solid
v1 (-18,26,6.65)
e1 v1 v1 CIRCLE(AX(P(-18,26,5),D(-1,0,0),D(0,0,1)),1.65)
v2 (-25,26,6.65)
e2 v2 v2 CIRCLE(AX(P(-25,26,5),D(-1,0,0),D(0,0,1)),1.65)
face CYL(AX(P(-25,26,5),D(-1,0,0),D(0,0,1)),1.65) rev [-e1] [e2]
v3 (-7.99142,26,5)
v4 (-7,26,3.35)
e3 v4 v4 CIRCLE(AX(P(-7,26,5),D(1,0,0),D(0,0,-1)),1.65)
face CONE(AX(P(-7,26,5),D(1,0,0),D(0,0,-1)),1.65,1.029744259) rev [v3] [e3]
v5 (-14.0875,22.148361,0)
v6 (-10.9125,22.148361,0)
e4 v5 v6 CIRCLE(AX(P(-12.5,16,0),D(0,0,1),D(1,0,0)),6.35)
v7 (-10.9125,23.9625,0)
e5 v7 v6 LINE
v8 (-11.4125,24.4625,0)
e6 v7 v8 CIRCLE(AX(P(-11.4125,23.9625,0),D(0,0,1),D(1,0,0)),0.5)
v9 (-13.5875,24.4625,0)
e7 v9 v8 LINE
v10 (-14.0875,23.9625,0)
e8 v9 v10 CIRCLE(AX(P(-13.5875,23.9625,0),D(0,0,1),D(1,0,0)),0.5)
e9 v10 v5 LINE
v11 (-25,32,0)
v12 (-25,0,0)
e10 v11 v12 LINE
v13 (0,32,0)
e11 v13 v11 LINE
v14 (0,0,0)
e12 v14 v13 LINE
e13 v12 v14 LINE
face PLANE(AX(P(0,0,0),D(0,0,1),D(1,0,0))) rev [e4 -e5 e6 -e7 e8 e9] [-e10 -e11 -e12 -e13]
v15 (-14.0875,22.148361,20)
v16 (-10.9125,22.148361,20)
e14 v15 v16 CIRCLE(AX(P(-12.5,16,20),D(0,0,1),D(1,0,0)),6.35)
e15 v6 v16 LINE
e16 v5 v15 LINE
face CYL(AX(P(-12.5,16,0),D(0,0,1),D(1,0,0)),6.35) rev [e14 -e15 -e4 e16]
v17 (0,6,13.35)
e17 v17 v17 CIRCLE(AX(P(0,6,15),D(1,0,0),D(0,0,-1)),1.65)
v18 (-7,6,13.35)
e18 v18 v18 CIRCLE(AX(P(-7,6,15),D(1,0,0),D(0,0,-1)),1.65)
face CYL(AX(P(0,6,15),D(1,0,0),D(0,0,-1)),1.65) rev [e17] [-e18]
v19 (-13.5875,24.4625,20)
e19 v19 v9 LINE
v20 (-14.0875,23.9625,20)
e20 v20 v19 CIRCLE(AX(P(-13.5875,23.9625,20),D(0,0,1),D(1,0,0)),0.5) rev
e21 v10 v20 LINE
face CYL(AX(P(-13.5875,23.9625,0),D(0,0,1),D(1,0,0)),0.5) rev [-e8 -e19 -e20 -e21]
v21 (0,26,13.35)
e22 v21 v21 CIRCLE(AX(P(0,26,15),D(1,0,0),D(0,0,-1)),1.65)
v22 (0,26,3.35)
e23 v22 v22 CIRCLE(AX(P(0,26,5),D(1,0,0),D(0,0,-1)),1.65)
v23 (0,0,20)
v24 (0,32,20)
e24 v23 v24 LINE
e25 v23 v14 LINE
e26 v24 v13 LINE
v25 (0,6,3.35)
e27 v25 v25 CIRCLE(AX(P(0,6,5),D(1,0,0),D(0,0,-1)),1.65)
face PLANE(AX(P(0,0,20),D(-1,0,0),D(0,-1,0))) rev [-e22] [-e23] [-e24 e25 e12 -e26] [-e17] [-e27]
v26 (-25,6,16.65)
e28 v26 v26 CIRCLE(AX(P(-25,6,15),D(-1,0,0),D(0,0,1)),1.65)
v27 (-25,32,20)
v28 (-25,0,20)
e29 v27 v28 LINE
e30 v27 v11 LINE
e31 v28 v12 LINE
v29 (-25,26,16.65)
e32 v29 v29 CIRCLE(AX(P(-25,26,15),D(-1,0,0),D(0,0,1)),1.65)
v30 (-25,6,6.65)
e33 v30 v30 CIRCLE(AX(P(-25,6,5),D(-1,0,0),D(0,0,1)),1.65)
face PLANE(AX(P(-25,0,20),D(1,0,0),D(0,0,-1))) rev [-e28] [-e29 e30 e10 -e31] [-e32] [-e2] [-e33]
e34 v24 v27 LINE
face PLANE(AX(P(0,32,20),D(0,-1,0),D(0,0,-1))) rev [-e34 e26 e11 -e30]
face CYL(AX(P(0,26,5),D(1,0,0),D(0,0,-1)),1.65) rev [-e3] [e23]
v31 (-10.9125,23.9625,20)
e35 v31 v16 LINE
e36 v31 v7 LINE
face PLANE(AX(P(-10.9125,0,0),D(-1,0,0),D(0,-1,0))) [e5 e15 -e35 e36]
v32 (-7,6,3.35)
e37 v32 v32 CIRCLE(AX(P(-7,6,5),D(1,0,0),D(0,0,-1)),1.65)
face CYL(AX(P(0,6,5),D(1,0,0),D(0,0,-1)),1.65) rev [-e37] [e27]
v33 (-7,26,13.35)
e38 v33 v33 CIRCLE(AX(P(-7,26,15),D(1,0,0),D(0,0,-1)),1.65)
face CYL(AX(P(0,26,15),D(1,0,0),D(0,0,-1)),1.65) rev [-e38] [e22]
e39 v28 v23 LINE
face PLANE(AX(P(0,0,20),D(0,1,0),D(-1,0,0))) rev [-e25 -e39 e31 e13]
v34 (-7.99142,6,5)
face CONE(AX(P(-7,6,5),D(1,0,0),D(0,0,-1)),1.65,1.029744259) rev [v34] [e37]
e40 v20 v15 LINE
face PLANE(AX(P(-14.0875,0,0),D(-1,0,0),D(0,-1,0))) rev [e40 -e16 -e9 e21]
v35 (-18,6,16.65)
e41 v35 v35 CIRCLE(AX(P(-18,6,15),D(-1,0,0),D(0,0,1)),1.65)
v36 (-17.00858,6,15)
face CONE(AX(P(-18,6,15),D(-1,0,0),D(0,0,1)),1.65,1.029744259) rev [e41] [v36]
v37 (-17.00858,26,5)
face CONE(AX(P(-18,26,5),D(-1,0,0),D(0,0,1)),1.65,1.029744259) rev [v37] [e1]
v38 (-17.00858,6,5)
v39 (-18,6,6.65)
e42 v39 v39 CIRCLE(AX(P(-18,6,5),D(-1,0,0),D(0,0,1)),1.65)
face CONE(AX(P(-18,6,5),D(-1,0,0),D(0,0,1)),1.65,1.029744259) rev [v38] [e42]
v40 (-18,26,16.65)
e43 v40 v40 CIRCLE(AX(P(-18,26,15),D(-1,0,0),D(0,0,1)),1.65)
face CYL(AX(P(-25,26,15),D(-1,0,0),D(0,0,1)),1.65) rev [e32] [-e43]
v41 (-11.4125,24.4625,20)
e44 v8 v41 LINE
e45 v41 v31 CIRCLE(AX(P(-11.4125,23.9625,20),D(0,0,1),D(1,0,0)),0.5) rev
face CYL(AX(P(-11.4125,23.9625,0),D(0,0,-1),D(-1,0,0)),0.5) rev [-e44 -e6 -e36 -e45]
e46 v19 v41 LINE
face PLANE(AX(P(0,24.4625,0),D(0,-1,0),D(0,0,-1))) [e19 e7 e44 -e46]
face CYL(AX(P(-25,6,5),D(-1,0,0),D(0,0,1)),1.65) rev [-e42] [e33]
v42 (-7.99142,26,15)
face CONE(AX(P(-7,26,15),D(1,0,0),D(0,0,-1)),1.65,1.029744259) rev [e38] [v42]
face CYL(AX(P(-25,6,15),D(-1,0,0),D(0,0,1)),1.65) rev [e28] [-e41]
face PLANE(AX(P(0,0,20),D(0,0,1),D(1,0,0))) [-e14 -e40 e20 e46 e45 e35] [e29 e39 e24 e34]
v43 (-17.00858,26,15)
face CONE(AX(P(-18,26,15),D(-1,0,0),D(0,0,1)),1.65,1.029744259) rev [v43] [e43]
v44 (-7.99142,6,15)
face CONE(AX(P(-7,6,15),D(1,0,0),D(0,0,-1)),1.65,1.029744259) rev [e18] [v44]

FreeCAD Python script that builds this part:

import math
import FreeCAD as App
import Part
import Sketcher
Q = App.Units.Quantity


def edges_at(feature, points):
    """Names of the edges that pass closest to the given points."""
    edges = feature.Shape.Edges
    near = lambda p: min(range(len(edges)), key=lambda i: edges[i].distToShape(Part.Vertex(*p))[0])
    return sorted({f"Edge{near(p) + 1}" for p in points})


def add_polygon(sketch, points):
    """Adds a closed chain of lines whose ends are joined by coincident constraints."""
    first, n = sketch.GeometryCount, len(points)
    for a, b in zip(points, points[1:] + points[:1]):
        sketch.addGeometry(Part.LineSegment(App.Vector(*a, 0), App.Vector(*b, 0)), False)
    for i in range(n):
        sketch.addConstraint(Sketcher.Constraint("Coincident", first + i, 2, first + (i + 1) % n, 1))

doc = App.newDocument("Part")
body = doc.addObject("PartDesign::Body", "Body")

# Sketch on XY plane
sketch1 = body.newObject("Sketcher::SketchObject", "Sketch")
sketch1.AttachmentSupport = (doc.getObject("XY_Plane"), [""])
sketch1.MapMode = "FlatFace"
add_polygon(sketch1, [(-25, 32), (-25, 0), (0, 0), (0, 32)])  # lines 0-3
sketch1.addConstraint([
    Sketcher.Constraint("Vertical", 0),
    Sketcher.Constraint("Horizontal", 1),
    Sketcher.Constraint("Vertical", 2),
    Sketcher.Constraint("Horizontal", 3),
    Sketcher.Constraint("Coincident", 1, 2, -1, 1),
    Sketcher.Constraint("DistanceX", 1, 1, 1, 2, 25.0),
    Sketcher.Constraint("DistanceY", 0, 2, 0, 1, 32.0),
])
pad1 = body.newObject("PartDesign::Pad", "Pad")
pad1.Profile = sketch1
pad1.Length = 20

# Sketch on XY plane
sketch2 = body.newObject("Sketcher::SketchObject", "Sketch001")
sketch2.AttachmentSupport = (doc.getObject("XY_Plane"), [""])
sketch2.MapMode = "FlatFace"
sketch2.AttachmentOffset = App.Placement(App.Vector(0, 0, 20), App.Rotation())
sketch2.addGeometry([
    Part.ArcOfCircle(Part.Circle(App.Vector(-12.5, 16, 0), App.Vector(0, 0, 1), 6.3), math.radians(104), math.radians(360)),  # 0
    Part.ArcOfCircle(Part.Circle(App.Vector(-12.5, 16, 0), App.Vector(0, 0, 1), 6.3), math.radians(0), math.radians(76)),  # 1
    Part.LineSegment(App.Vector(-10.9, 22.1, 0), App.Vector(-10.9, 24.5, 0)),  # 2
    Part.LineSegment(App.Vector(-10.9, 24.5, 0), App.Vector(-14.1, 24.5, 0)),  # 3
    Part.LineSegment(App.Vector(-14.1, 24.5, 0), App.Vector(-14.1, 22.1, 0)),  # 4
], False)
sketch2.addConstraint([
    Sketcher.Constraint("Tangent", 0, 2, 1, 1),
    Sketcher.Constraint("Coincident", 1, 2, 2, 1),
    Sketcher.Constraint("Coincident", 2, 2, 3, 1),
    Sketcher.Constraint("Coincident", 3, 2, 4, 1),
    Sketcher.Constraint("Coincident", 4, 2, 0, 1),
    Sketcher.Constraint("Vertical", 2),
    Sketcher.Constraint("Horizontal", 3),
    Sketcher.Constraint("Vertical", 4),
    Sketcher.Constraint("Equal", 0, 1),
    Sketcher.Constraint("Horizontal", 1, 3, 0, 2),
    Sketcher.Constraint("Horizontal", 1, 2, 4, 2),
    Sketcher.Constraint("Radius", 0, 6.35),
    Sketcher.Constraint("DistanceY", -1, 1, 0, 3, 16.0),
    Sketcher.Constraint("DistanceX", 0, 3, -1, 1, 12.5),
    Sketcher.Constraint("DistanceX", 3, 2, 3, 1, 3.175),
    Sketcher.Constraint("DistanceY", 2, 1, 2, 2, 2.314139),
])
pocket1 = body.newObject("PartDesign::Pocket", "Pocket")
pocket1.Profile = sketch2
pocket1.Type = "ThroughAll"

# Sketch on XZ plane
sketch3 = body.newObject("Sketcher::SketchObject", "Sketch002")
sketch3.AttachmentSupport = (doc.getObject("XZ_Plane"), [""])
sketch3.MapMode = "FlatFace"
sketch3.AttachmentOffset = App.Placement(App.Vector(0, 0, -26), App.Rotation())
add_polygon(sketch3, [(-17, 5), (-25, 5), (-25, 6.7), (-18, 6.7)])  # lines 0-3
sketch3.addGeometry(Part.LineSegment(App.Vector(-25, 5, 0), App.Vector(-17, 5, 0)), True)  # axis
sketch3.addConstraint([
    Sketcher.Constraint("Horizontal", 0),
    Sketcher.Constraint("Vertical", 1),
    Sketcher.Constraint("Horizontal", 2),
    Sketcher.Constraint("Horizontal", 4),
    Sketcher.Constraint("Coincident", 4, 1, 0, 2),
    Sketcher.Constraint("Equal", 0, 4),
    Sketcher.Constraint("DistanceX", 2, 1, 2, 2, 7.0),
    Sketcher.Constraint("Angle", 3, Q("-59 deg")),
    Sketcher.Constraint("DistanceX", 0, 2, -1, 1, 25.0),
    Sketcher.Constraint("DistanceY", -1, 1, 0, 2, 5.0),
    Sketcher.Constraint("DistanceY", 1, 1, 1, 2, 1.65),
])
groove = body.newObject("PartDesign::Groove", "Groove")
groove.Profile = sketch3
groove.ReferenceAxis = (sketch3, ["Axis0"])
groove.Angle = 360
doc.recompute()

datumline = body.newObject("PartDesign::Line", "DatumLine")
datumline.Placement = App.Placement(App.Vector(0, 0, 0), App.Rotation(App.Vector(0, 0, 1), App.Vector(0, -0.894427191, 0.447213595)))
linearpattern = body.newObject("PartDesign::LinearPattern", "LinearPattern")
linearpattern.Originals = [groove]
linearpattern.Direction = (datumline, [""])
linearpattern.Mode = "offset"
linearpattern.Offset = 22.36068
linearpattern.Occurrences = 2
body.Tip = linearpattern
doc.recompute()

linearpattern2 = body.newObject("PartDesign::LinearPattern", "LinearPattern001")
linearpattern2.Originals = [groove]
linearpattern2.Direction = (doc.getObject("Y_Axis"), [""])
linearpattern2.Mode = "offset"
linearpattern2.Offset = 20
linearpattern2.Occurrences = 2
linearpattern2.Reversed = True
body.Tip = linearpattern2
doc.recompute()

linearpattern3 = body.newObject("PartDesign::LinearPattern", "LinearPattern002")
linearpattern3.Originals = [groove]
linearpattern3.Direction = (doc.getObject("Z_Axis"), [""])
linearpattern3.Mode = "offset"
linearpattern3.Offset = 10
linearpattern3.Occurrences = 2
body.Tip = linearpattern3
doc.recompute()

datumplane = body.newObject("PartDesign::Plane", "DatumPlane")
datumplane.AttachmentSupport = (doc.getObject("YZ_Plane"), [""])
datumplane.MapMode = "FlatFace"
datumplane.AttachmentOffset = App.Placement(App.Vector(0, 0, -12.5), App.Rotation())
mirrored = body.newObject("PartDesign::Mirrored", "Mirrored")
mirrored.Originals = [groove]
mirrored.MirrorPlane = (datumplane, [""])
body.Tip = mirrored

# Sketch on XZ plane
sketch4 = body.newObject("Sketcher::SketchObject", "Sketch003")
sketch4.AttachmentSupport = (doc.getObject("XZ_Plane"), [""])
sketch4.MapMode = "FlatFace"
sketch4.AttachmentOffset = App.Placement(App.Vector(0, 0, -6), App.Rotation())
add_polygon(sketch4, [(0, 15), (-8, 15), (-7, 16.6), (0, 16.6)])  # lines 0-3
sketch4.addGeometry(Part.LineSegment(App.Vector(-8, 15, 0), App.Vector(0, 15, 0)), True)  # axis
sketch4.addConstraint([
    Sketcher.Constraint("Horizontal", 0),
    Sketcher.Constraint("Horizontal", 2),
    Sketcher.Constraint("Vertical", 3),
    Sketcher.Constraint("Horizontal", 4),
    Sketcher.Constraint("Coincident", 4, 1, 0, 2),
    Sketcher.Constraint("PointOnObject", 2, 2, -2),
    Sketcher.Constraint("PointOnObject", 4, 2, -2),
    Sketcher.Constraint("DistanceX", 2, 1, 2, 2, 7.0),
    Sketcher.Constraint("Angle", 1, Q("59 deg")),
    Sketcher.Constraint("DistanceY", -1, 1, 0, 2, 15.0),
    Sketcher.Constraint("DistanceY", 3, 2, 3, 1, 1.65),
])
groove2 = body.newObject("PartDesign::Groove", "Groove001")
groove2.Profile = sketch4
groove2.ReferenceAxis = (sketch4, ["Axis0"])
groove2.Angle = 360

# Sketch on XZ plane
sketch5 = body.newObject("Sketcher::SketchObject", "Sketch004")
sketch5.AttachmentSupport = (doc.getObject("XZ_Plane"), [""])
sketch5.MapMode = "FlatFace"
sketch5.AttachmentOffset = App.Placement(App.Vector(0, 0, -6), App.Rotation())
add_polygon(sketch5, [(0, 5), (-8, 5), (-7, 6.7), (0, 6.7)])  # lines 0-3
sketch5.addGeometry(Part.LineSegment(App.Vector(-8, 5, 0), App.Vector(0, 5, 0)), True)  # axis
sketch5.addConstraint([
    Sketcher.Constraint("Horizontal", 0),
    Sketcher.Constraint("Horizontal", 2),
    Sketcher.Constraint("Vertical", 3),
    Sketcher.Constraint("Horizontal", 4),
    Sketcher.Constraint("Coincident", 4, 1, 0, 2),
    Sketcher.Constraint("PointOnObject", 2, 2, -2),
    Sketcher.Constraint("PointOnObject", 4, 2, -2),
    Sketcher.Constraint("DistanceX", 2, 1, 2, 2, 7.0),
    Sketcher.Constraint("Angle", 1, Q("59 deg")),
    Sketcher.Constraint("DistanceY", -1, 1, 0, 2, 5.0),
    Sketcher.Constraint("DistanceY", 3, 2, 3, 1, 1.65),
])
groove3 = body.newObject("PartDesign::Groove", "Groove002")
groove3.Profile = sketch5
groove3.ReferenceAxis = (sketch5, ["Axis0"])
groove3.Angle = 360

# Sketch on XZ plane
sketch6 = body.newObject("Sketcher::SketchObject", "Sketch005")
sketch6.AttachmentSupport = (doc.getObject("XZ_Plane"), [""])
sketch6.MapMode = "FlatFace"
sketch6.AttachmentOffset = App.Placement(App.Vector(0, 0, -26), App.Rotation())
add_polygon(sketch6, [(0, 15), (-8, 15), (-7, 16.6), (0, 16.6)])  # lines 0-3
sketch6.addGeometry(Part.LineSegment(App.Vector(-8, 15, 0), App.Vector(0, 15, 0)), True)  # axis
sketch6.addConstraint([
    Sketcher.Constraint("Horizontal", 0),
    Sketcher.Constraint("Horizontal", 2),
    Sketcher.Constraint("Vertical", 3),
    Sketcher.Constraint("Horizontal", 4),
    Sketcher.Constraint("Coincident", 4, 1, 0, 2),
    Sketcher.Constraint("PointOnObject", 2, 2, -2),
    Sketcher.Constraint("PointOnObject", 4, 2, -2),
    Sketcher.Constraint("DistanceX", 2, 1, 2, 2, 7.0),
    Sketcher.Constraint("Angle", 1, Q("59 deg")),
    Sketcher.Constraint("DistanceY", -1, 1, 0, 2, 15.0),
    Sketcher.Constraint("DistanceY", 3, 2, 3, 1, 1.65),
])
groove4 = body.newObject("PartDesign::Groove", "Groove003")
groove4.Profile = sketch6
groove4.ReferenceAxis = (sketch6, ["Axis0"])
groove4.Angle = 360
doc.recompute()

fillet = body.newObject("PartDesign::Fillet", "Fillet")
fillet.Base = (groove4, edges_at(groove4, [(-14.088, 24.462, 10), (-10.912, 24.462, 10)]))
fillet.Radius = 0.5

doc.recompute()
